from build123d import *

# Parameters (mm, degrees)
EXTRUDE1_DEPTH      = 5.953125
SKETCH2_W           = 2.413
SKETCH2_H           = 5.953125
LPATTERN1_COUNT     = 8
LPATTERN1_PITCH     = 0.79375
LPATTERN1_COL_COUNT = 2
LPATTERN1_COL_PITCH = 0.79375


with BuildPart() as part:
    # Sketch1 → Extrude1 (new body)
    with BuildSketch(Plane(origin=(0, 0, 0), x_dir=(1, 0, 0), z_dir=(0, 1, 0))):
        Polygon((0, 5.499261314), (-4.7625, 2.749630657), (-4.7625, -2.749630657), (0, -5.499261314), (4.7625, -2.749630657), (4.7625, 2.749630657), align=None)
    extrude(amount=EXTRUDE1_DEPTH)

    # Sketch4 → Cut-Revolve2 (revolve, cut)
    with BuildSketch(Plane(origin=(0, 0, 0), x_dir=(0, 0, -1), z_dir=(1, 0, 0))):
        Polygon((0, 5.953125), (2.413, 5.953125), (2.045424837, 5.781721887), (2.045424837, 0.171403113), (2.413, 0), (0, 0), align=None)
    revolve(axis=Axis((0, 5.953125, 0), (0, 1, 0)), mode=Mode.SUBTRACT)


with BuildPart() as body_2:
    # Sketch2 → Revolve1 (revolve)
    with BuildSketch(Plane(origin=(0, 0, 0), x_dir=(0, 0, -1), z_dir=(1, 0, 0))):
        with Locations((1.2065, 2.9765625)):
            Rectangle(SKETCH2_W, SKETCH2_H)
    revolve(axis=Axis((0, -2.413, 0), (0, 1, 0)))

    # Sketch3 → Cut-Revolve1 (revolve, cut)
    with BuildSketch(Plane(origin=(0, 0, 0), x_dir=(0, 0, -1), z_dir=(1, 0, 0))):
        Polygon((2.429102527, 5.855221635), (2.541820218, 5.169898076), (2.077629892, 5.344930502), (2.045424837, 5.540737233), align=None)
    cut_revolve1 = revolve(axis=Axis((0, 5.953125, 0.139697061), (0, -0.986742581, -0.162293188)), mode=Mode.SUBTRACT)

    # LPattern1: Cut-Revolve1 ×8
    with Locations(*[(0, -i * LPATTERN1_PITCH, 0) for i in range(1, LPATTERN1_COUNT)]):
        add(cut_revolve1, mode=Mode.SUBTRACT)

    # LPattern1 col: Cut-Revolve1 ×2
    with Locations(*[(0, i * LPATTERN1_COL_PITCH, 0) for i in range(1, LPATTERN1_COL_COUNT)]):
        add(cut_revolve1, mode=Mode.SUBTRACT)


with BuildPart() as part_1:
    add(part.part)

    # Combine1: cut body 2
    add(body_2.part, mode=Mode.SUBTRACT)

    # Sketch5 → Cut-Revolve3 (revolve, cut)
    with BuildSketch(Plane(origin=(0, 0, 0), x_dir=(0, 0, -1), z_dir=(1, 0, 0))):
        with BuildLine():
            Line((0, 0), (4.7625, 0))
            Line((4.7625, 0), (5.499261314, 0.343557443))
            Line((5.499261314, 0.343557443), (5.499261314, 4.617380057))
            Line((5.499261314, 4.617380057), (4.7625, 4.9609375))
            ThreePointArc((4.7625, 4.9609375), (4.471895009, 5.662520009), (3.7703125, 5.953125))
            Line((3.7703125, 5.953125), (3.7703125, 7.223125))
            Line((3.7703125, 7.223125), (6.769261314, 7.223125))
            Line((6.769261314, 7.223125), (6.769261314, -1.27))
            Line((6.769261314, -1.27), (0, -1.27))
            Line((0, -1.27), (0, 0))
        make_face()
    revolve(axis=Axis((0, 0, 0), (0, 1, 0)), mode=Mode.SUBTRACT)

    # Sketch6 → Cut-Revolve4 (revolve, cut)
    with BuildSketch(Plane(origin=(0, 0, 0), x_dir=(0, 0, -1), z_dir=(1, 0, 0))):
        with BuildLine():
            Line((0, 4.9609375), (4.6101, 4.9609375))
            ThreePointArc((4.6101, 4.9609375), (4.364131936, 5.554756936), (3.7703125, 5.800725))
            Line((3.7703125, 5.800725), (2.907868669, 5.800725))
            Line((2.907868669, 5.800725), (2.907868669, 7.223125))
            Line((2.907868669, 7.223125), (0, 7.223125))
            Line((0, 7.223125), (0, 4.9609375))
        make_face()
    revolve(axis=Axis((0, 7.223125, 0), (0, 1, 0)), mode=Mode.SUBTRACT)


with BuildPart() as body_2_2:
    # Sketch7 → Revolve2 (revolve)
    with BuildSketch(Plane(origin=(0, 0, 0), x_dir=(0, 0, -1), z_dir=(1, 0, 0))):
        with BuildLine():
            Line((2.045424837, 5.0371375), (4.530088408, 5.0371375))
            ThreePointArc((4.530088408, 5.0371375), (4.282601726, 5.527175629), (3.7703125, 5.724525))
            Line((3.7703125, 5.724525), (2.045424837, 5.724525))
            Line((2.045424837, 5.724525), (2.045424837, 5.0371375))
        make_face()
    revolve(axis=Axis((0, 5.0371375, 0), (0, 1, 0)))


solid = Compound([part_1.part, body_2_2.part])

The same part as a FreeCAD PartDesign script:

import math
import FreeCAD as App
import Part
import Sketcher
Q = App.Units.Quantity


def add_polygon(sketch, points):
    """Adds a closed chain of lines whose ends are joined by coincident constraints."""
    first, n = sketch.GeometryCount, len(points)
    for a, b in zip(points, points[1:] + points[:1]):
        sketch.addGeometry(Part.LineSegment(App.Vector(*a, 0), App.Vector(*b, 0)), False)
    for i in range(n):
        sketch.addConstraint(Sketcher.Constraint("Coincident", first + i, 2, first + (i + 1) % n, 1))

doc = App.newDocument("Part")
body = doc.addObject("PartDesign::Body", "Body")

# Sketch on XZ plane
sketch1 = body.newObject("Sketcher::SketchObject", "Sketch")
sketch1.AttachmentSupport = (doc.getObject("XZ_Plane"), [""])
sketch1.MapMode = "FlatFace"
add_polygon(sketch1, [(0, -5), (-5, -3), (-5, 3), (0, 5), (5, 3), (5, -3)])  # lines 0-5
sketch1.addConstraint([
    Sketcher.Constraint("Vertical", 1),
    Sketcher.Constraint("Vertical", 4),
    Sketcher.Constraint("Symmetric", 0, 2, 3, 2, -1, 1),
    Sketcher.Constraint("Symmetric", 2, 2, 5, 2, -1, 1),
    Sketcher.Constraint("PointOnObject", 2, 2, -2),
    Sketcher.Constraint("Parallel", 2, 5),
    Sketcher.Constraint("Horizontal", 1, 2, 3, 2),
    Sketcher.Constraint("Angle", 0, Q("150 deg")),
    Sketcher.Constraint("DistanceX", 0, 2, -1, 1, Q("0.1875 in")),
    Sketcher.Constraint("DistanceY", 1, 1, 1, 2, 5.499261),
])
pad1 = body.newObject("PartDesign::Pad", "Pad")
pad1.Profile = sketch1
pad1.Length = Q("0.234375 in")
pad1.Reversed = True

# Sketch on YZ plane
sketch2 = body.newObject("Sketcher::SketchObject", "Sketch001")
sketch2.AttachmentSupport = (doc.getObject("YZ_Plane"), [""])
sketch2.MapMode = "FlatFace"
add_polygon(sketch2, [(5.95, -2.41), (5.95, 0), (0, 0), (0, -2.41), (0.17, -2.05), (5.78, -2.05)])  # lines 0-5
sketch2.addConstraint([
    Sketcher.Constraint("Vertical", 0),
    Sketcher.Constraint("Horizontal", 1),
    Sketcher.Constraint("Vertical", 2),
    Sketcher.Constraint("Horizontal", 4),
    Sketcher.Constraint("Coincident", 1, 2, -1, 1),
    Sketcher.Constraint("Horizontal", 2, 2, 5, 2),
    Sketcher.Constraint("Equal", 3, 5),
    Sketcher.Constraint("Angle", 3, Q("65 deg")),
    Sketcher.Constraint("DistanceX", 1, 2, 1, 1, Q("0.234375 in")),
    Sketcher.Constraint("DistanceY", 0, 1, 0, 2, Q("0.095 in")),
    Sketcher.Constraint("DistanceX", 4, 1, 4, 2, 5.610319),
])
groove = body.newObject("PartDesign::Groove", "Groove")
groove.Profile = sketch2
groove.ReferenceAxis = (sketch2, ["H_Axis"])
groove.Angle = 360
body2 = doc.addObject("PartDesign::Body", "Body001")

# Sketch on YZ plane
sketch3 = body2.newObject("Sketcher::SketchObject", "Sketch002")
sketch3.AttachmentSupport = (doc.getObject("YZ_Plane001"), [""])
sketch3.MapMode = "FlatFace"
add_polygon(sketch3, [(6, 0), (0, 0), (0, -2.4), (6, -2.4)])  # lines 0-3
sketch3.addConstraint([
    Sketcher.Constraint("Horizontal", 0),
    Sketcher.Constraint("Vertical", 1),
    Sketcher.Constraint("Horizontal", 2),
    Sketcher.Constraint("Vertical", 3),
    Sketcher.Constraint("Coincident", 0, 2, -1, 1),
    Sketcher.Constraint("DistanceX", 0, 2, 0, 1, Q("0.234375 in")),
    Sketcher.Constraint("DistanceY", 1, 2, 1, 1, Q("0.095 in")),
])
revolution = body2.newObject("PartDesign::Revolution", "Revolution")
revolution.Profile = sketch3
revolution.ReferenceAxis = (sketch3, ["H_Axis"])
revolution.Angle = 360

# Sketch on YZ plane
sketch4 = body2.newObject("Sketcher::SketchObject", "Sketch003")
sketch4.AttachmentSupport = (doc.getObject("YZ_Plane001"), [""])
sketch4.MapMode = "FlatFace"
add_polygon(sketch4, [(5.17, -2.54), (5.86, -2.43), (5.54, -2.05), (5.34, -2.08)])  # lines 0-3
sketch4.addGeometry(Part.LineSegment(App.Vector(5.45, 0.06, 0), App.Vector(4.76, -0.06, 0)), True)  # axis
sketch4.addConstraint([
    Sketcher.Constraint("Parallel", 0, 2),
    Sketcher.Constraint("Parallel", 2, 4),
    Sketcher.Constraint("Equal", 1, 3),
    Sketcher.Constraint("Equal", 0, 4),
    Sketcher.Constraint("DistanceX", 3, 2, 1, 2, Q("0.0146 in")),
    Sketcher.Constraint("DistanceX", -1, 1, 3, 2, 5.169898),
    Sketcher.Constraint("DistanceX", 2, 2, 4, 1, 0.101498),
    Sketcher.Constraint("Distance", 0, 0.694531),
    Sketcher.Constraint("DistanceX", -1, 1, 0, 2, 5.855222),
    Sketcher.Constraint("DistanceX", -1, 1, 2, 2, 5.344931),
    Sketcher.Constraint("DistanceY", 2, 2, -1, 1, 2.07763),
    Sketcher.Constraint("DistanceY", -1, 1, 4, 1, 0.056359),
])
groove2 = body2.newObject("PartDesign::Groove", "Groove001")
groove2.Profile = sketch4
groove2.ReferenceAxis = (sketch4, ["Axis0"])
groove2.Angle = 360
doc.recompute()

linearpattern = body2.newObject("PartDesign::LinearPattern", "LinearPattern")
linearpattern.Originals = [groove2]
linearpattern.Direction = (doc.getObject("Y_Axis001"), [""])
linearpattern.Mode = "offset"
linearpattern.Offset = Q("0.03125 in")
linearpattern.Occurrences = 8
linearpattern.Reversed = True
body2.Tip = linearpattern
doc.recompute()

linearpattern2 = body2.newObject("PartDesign::LinearPattern", "LinearPattern001")
linearpattern2.Originals = [groove2]
linearpattern2.Direction = (doc.getObject("Y_Axis001"), [""])
linearpattern2.Mode = "offset"
linearpattern2.Offset = Q("0.03125 in")
linearpattern2.Occurrences = 2
body2.Tip = linearpattern2
doc.recompute()

boolean = body.newObject("PartDesign::Boolean", "Boolean")
boolean.Type = "Cut"
boolean.addObjects([body2])

# Sketch on YZ plane
sketch5 = body.newObject("Sketcher::SketchObject", "Sketch004")
sketch5.AttachmentSupport = (doc.getObject("YZ_Plane"), [""])
sketch5.MapMode = "FlatFace"
sketch5.addGeometry([
    Part.LineSegment(App.Vector(0, -4.8, 0), App.Vector(0, 0, 0)),  # 0
    Part.LineSegment(App.Vector(0, 0, 0), App.Vector(-1.3, 0, 0)),  # 1
    Part.LineSegment(App.Vector(-1.3, 0, 0), App.Vector(-1.3, -6.8, 0)),  # 2
    Part.LineSegment(App.Vector(-1.3, -6.8, 0), App.Vector(7.2, -6.8, 0)),  # 3
    Part.LineSegment(App.Vector(7.2, -6.8, 0), App.Vector(7.2, -3.8, 0)),  # 4
    Part.LineSegment(App.Vector(7.2, -3.8, 0), App.Vector(6, -3.8, 0)),  # 5
    Part.ArcOfCircle(Part.Circle(App.Vector(5, -3.8, 0), App.Vector(0, 0, 1), 1), math.radians(-90), math.radians(0)),  # 6
    Part.LineSegment(App.Vector(5, -4.8, 0), App.Vector(4.6, -5.5, 0)),  # 7
    Part.LineSegment(App.Vector(4.6, -5.5, 0), App.Vector(0.3, -5.5, 0)),  # 8
    Part.LineSegment(App.Vector(0.3, -5.5, 0), App.Vector(0, -4.8, 0)),  # 9
], False)
sketch5.addConstraint([
    Sketcher.Constraint("Coincident", 0, 2, 1, 1),
    Sketcher.Constraint("Coincident", 1, 2, 2, 1),
    Sketcher.Constraint("Coincident", 2, 2, 3, 1),
    Sketcher.Constraint("Coincident", 3, 2, 4, 1),
    Sketcher.Constraint("Coincident", 4, 2, 5, 1),
    Sketcher.Constraint("Coincident", 5, 2, 6, 2),
    Sketcher.Constraint("Coincident", 6, 1, 7, 1),
    Sketcher.Constraint("Coincident", 7, 2, 8, 1),
    Sketcher.Constraint("Coincident", 8, 2, 9, 1),
    Sketcher.Constraint("Coincident", 9, 2, 0, 1),
    Sketcher.Constraint("Vertical", 0),
    Sketcher.Constraint("Horizontal", 1),
    Sketcher.Constraint("Vertical", 2),
    Sketcher.Constraint("Horizontal", 3),
    Sketcher.Constraint("Vertical", 4),
    Sketcher.Constraint("Horizontal", 5),
    Sketcher.Constraint("Horizontal", 8),
    Sketcher.Constraint("Coincident", 0, 2, -1, 1),
    Sketcher.Constraint("Horizontal", 6, 3, 4, 2),
    Sketcher.Constraint("Horizontal", 6, 1, 9, 2),
    Sketcher.Constraint("Equal", 1, 5),
    Sketcher.Constraint("Equal", 7, 9),
    Sketcher.Constraint("Angle", 7, Q("-115 deg")),
    Sketcher.Constraint("DistanceX", 1, 2, 1, 1, Q("0.05 in")),
    Sketcher.Constraint("DistanceY", 0, 1, 0, 2, Q("0.1875 in")),
    Sketcher.Constraint("DistanceY", 3, 2, 7, 2, Q("0.05 in")),
    Sketcher.Constraint("DistanceX", -1, 1, 5, 2, Q("0.234375 in")),
    Sketcher.Constraint("Radius", 6, 0.992188),
    Sketcher.Constraint("DistanceY", 2, 2, 2, 1, 6.769261),
    Sketcher.Constraint("DistanceX", 8, 2, 8, 1, 4.273823),
])
groove3 = body.newObject("PartDesign::Groove", "Groove002")
groove3.Profile = sketch5
groove3.ReferenceAxis = (sketch5, ["H_Axis"])
groove3.Angle = 360

# Sketch on YZ plane
sketch6 = body.newObject("Sketcher::SketchObject", "Sketch005")
sketch6.AttachmentSupport = (doc.getObject("YZ_Plane"), [""])
sketch6.MapMode = "FlatFace"
sketch6.addGeometry([
    Part.LineSegment(App.Vector(5, 0, 0), App.Vector(5, -4.6, 0)),  # 0
    Part.ArcOfCircle(Part.Circle(App.Vector(5, -3.8, 0), App.Vector(0, 0, 1), 0.8), math.radians(-90), math.radians(0)),  # 1
    Part.LineSegment(App.Vector(5.8, -3.8, 0), App.Vector(5.8, -2.9, 0)),  # 2
    Part.LineSegment(App.Vector(5.8, -2.9, 0), App.Vector(7.2, -2.9, 0)),  # 3
    Part.LineSegment(App.Vector(7.2, -2.9, 0), App.Vector(7.2, 0, 0)),  # 4
    Part.LineSegment(App.Vector(7.2, 0, 0), App.Vector(5, 0, 0)),  # 5
], False)
sketch6.addConstraint([
    Sketcher.Constraint("Coincident", 0, 2, 1, 1),
    Sketcher.Constraint("Tangent", 1, 2, 2, 1),
    Sketcher.Constraint("Coincident", 2, 2, 3, 1),
    Sketcher.Constraint("Coincident", 3, 2, 4, 1),
    Sketcher.Constraint("Coincident", 4, 2, 5, 1),
    Sketcher.Constraint("Coincident", 5, 2, 0, 1),
    Sketcher.Constraint("Vertical", 0),
    Sketcher.Constraint("Vertical", 2),
    Sketcher.Constraint("Horizontal", 3),
    Sketcher.Constraint("Vertical", 4),
    Sketcher.Constraint("Horizontal", 5),
    Sketcher.Constraint("PointOnObject", 4, 2, -1),
    Sketcher.Constraint("Vertical", 1, 3, 0, 2),
    Sketcher.Constraint("DistanceX", 3, 1, 3, 2, Q("0.056 in")),
    Sketcher.Constraint("DistanceY", 0, 2, 0, 1, Q("0.1815 in")),
    Sketcher.Constraint("Radius", 1, 0.839788),
    Sketcher.Constraint("DistanceY", 4, 1, 4, 2, 2.907869),
    Sketcher.Constraint("DistanceX", -1, 1, 1, 3, 4.960938),
])
groove4 = body.newObject("PartDesign::Groove", "Groove003")
groove4.Profile = sketch6
groove4.ReferenceAxis = (sketch6, ["H_Axis"])
groove4.Angle = 360
body3 = doc.addObject("PartDesign::Body", "Body002")

# Sketch on YZ plane
sketch7 = body3.newObject("Sketcher::SketchObject", "Sketch006")
sketch7.AttachmentSupport = (doc.getObject("YZ_Plane002"), [""])
sketch7.MapMode = "FlatFace"
sketch7.addGeometry([
    Part.LineSegment(App.Vector(5, -2, 0), App.Vector(5, -4.5, 0)),
    Part.ArcOfCircle(Part.Circle(App.Vector(5, -3.8, 0), App.Vector(0, 0, 1), 0.8), math.radians(-84), math.radians(0)),
    Part.LineSegment(App.Vector(5.7, -3.8, 0), App.Vector(5.7, -2, 0)),
    Part.LineSegment(App.Vector(5.7, -2, 0), App.Vector(5, -2, 0)),
], False)
sketch7.addConstraint([
    Sketcher.Constraint("Coincident", 0, 2, 1, 1),
    Sketcher.Constraint("Tangent", 1, 2, 2, 1),
    Sketcher.Constraint("Coincident", 2, 2, 3, 1),
    Sketcher.Constraint("Coincident", 3, 2, 0, 1),
    Sketcher.Constraint("Vertical", 0),
    Sketcher.Constraint("Vertical", 2),
    Sketcher.Constraint("Horizontal", 3),
    Sketcher.Constraint("DistanceX", 1, 3, 0, 2, Q("0.003 in")),
    Sketcher.Constraint("Radius", 1, 0.763588),
    Sketcher.Constraint("DistanceY", 0, 2, 0, 1, 2.484664),
    Sketcher.Constraint("DistanceY", 0, 2, -1, 1, 4.530088),
    Sketcher.Constraint("DistanceX", -1, 1, 1, 3, 4.960937),
])
revolution2 = body3.newObject("PartDesign::Revolution", "Revolution001")
revolution2.Profile = sketch7
revolution2.ReferenceAxis = (sketch7, ["H_Axis"])
revolution2.Angle = 360

doc.recompute()
